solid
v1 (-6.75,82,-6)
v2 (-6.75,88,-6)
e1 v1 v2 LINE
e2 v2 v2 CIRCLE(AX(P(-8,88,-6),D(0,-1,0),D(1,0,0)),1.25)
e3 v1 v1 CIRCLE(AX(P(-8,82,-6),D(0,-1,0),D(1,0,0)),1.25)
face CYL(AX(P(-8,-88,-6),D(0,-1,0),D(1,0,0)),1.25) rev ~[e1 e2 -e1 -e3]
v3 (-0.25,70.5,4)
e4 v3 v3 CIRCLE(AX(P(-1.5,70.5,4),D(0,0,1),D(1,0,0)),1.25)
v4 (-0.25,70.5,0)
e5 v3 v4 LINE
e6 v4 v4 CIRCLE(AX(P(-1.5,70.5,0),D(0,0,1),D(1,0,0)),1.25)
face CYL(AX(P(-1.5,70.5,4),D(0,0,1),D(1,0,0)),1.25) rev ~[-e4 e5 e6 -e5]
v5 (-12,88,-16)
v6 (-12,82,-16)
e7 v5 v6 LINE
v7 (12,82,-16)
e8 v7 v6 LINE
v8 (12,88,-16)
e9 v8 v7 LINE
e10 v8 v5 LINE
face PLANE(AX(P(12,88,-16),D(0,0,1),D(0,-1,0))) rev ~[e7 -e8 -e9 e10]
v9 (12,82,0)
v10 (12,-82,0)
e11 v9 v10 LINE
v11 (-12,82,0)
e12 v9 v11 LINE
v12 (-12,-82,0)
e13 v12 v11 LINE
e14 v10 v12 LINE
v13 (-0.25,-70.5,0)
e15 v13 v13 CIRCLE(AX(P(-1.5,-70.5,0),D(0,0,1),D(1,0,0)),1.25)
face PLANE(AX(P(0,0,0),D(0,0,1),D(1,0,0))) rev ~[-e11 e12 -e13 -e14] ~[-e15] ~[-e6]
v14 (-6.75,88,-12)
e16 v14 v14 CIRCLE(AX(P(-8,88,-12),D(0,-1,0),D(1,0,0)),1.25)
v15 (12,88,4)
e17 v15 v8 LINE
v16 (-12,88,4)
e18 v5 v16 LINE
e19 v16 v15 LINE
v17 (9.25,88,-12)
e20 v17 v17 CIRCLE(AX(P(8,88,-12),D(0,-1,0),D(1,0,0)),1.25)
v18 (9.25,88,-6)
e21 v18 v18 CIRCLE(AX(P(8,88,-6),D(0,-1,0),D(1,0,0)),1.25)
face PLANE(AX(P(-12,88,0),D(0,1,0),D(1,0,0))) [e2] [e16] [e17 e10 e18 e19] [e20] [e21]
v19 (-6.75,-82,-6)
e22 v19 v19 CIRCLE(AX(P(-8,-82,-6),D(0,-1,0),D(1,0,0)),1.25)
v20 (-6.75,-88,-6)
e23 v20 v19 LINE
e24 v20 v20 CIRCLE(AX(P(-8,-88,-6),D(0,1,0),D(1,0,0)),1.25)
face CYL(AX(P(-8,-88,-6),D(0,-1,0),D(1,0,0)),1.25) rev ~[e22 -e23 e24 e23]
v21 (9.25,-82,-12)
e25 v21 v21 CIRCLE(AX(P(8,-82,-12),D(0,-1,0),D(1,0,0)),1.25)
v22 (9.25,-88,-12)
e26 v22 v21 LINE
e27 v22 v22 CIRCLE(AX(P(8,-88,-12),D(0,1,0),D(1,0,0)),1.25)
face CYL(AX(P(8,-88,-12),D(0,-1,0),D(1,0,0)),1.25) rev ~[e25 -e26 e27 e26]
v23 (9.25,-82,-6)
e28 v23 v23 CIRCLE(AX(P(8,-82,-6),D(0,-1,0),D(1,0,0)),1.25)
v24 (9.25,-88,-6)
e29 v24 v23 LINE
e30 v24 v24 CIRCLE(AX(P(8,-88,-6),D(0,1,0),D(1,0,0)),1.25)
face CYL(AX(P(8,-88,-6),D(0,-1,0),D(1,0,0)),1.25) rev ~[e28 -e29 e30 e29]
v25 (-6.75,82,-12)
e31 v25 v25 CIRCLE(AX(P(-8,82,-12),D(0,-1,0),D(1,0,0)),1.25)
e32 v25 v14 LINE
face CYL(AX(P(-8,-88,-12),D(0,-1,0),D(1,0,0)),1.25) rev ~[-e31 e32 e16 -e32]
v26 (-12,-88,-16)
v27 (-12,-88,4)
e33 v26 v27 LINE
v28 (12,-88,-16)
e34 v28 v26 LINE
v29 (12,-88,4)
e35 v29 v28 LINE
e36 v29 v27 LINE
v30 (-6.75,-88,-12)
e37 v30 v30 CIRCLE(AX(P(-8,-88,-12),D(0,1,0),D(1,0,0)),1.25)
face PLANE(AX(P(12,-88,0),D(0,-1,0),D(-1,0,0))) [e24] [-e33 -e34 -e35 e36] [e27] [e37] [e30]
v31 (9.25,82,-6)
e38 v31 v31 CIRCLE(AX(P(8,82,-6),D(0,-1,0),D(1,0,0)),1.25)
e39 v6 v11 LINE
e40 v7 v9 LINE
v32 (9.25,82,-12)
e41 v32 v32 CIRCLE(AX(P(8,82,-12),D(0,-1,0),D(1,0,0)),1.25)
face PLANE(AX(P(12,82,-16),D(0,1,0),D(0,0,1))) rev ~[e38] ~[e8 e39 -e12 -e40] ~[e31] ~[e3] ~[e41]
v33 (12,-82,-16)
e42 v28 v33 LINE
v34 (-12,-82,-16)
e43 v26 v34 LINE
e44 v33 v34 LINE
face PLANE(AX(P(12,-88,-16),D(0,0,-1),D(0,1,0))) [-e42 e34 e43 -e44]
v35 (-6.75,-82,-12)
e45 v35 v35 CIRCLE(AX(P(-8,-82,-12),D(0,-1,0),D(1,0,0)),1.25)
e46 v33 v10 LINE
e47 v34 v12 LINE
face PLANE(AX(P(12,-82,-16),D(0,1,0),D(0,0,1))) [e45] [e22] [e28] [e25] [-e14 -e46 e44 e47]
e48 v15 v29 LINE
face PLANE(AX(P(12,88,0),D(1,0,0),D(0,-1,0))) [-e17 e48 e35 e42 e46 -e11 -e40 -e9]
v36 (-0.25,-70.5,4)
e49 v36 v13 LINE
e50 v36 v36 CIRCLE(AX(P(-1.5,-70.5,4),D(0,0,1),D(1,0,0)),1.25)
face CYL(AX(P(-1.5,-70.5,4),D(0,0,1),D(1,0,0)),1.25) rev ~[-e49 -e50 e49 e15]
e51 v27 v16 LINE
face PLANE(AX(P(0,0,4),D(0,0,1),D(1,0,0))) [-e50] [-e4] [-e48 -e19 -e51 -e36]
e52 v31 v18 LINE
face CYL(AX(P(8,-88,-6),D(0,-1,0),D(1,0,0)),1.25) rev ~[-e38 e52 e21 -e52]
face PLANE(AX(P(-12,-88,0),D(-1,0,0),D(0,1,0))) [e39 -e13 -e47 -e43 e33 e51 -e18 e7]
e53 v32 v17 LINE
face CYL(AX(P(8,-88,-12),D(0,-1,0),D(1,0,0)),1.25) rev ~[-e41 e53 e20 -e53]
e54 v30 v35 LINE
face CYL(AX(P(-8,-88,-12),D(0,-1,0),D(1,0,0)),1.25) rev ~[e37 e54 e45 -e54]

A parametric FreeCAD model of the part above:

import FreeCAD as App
import Part
import Sketcher

doc = App.newDocument("Part")
body = doc.addObject("PartDesign::Body", "Body")

sketch1 = doc.addObject("Sketcher::SketchObject", "Sketch")
body.addObject(sketch1)
sketch1.AttachmentSupport = (doc.XY_Plane, [""])
sketch1.MapMode = "FlatFace"
sketch1.addGeometry([
    Part.LineSegment(App.Vector(12, 88, 0), App.Vector(-12, 88, 0)),
    Part.LineSegment(App.Vector(-12, 88, 0), App.Vector(-12, -88, 0)),
    Part.LineSegment(App.Vector(-12, -88, 0), App.Vector(12, -88, 0)),
    Part.LineSegment(App.Vector(12, -88, 0), App.Vector(12, 88, 0)),
], False)
sketch1.addConstraint([
    Sketcher.Constraint("Coincident", 0, 2, 1, 1),
    Sketcher.Constraint("Coincident", 1, 2, 2, 1),
    Sketcher.Constraint("Coincident", 2, 2, 3, 1),
    Sketcher.Constraint("Coincident", 3, 2, 0, 1),
    Sketcher.Constraint("Horizontal", 0),
    Sketcher.Constraint("Vertical", 1),
    Sketcher.Constraint("Horizontal", 2),
    Sketcher.Constraint("Vertical", 3),
    Sketcher.Constraint("Symmetric", 0, 2, 2, 2, -1, 1),
    Sketcher.Constraint("DistanceX", 0, 2, 0, 1, 24.0),
    Sketcher.Constraint("DistanceY", 1, 2, 1, 1, 176.0),
])
pad1 = doc.addObject("PartDesign::Pad", "Pad")
body.addObject(pad1)
pad1.Profile = sketch1
pad1.Length = 4

sketch2 = doc.addObject("Sketcher::SketchObject", "Sketch001")
body.addObject(sketch2)
sketch2.AttachmentSupport = (doc.YZ_Plane, [""])
sketch2.MapMode = "FlatFace"
sketch2.AttachmentOffset = App.Placement(App.Vector(0, 0, 12), App.Rotation())
sketch2.addGeometry([
    Part.LineSegment(App.Vector(-82, 0, 0), App.Vector(-88, 0, 0)),
    Part.LineSegment(App.Vector(-88, 0, 0), App.Vector(-88, -16, 0)),
    Part.LineSegment(App.Vector(-88, -16, 0), App.Vector(-82, -16, 0)),
    Part.LineSegment(App.Vector(-82, -16, 0), App.Vector(-82, 0, 0)),
    Part.LineSegment(App.Vector(88, 0, 0), App.Vector(82, 0, 0)),
    Part.LineSegment(App.Vector(82, 0, 0), App.Vector(82, -16, 0)),
    Part.LineSegment(App.Vector(82, -16, 0), App.Vector(88, -16, 0)),
    Part.LineSegment(App.Vector(88, -16, 0), App.Vector(88, 0, 0)),
], False)
sketch2.addConstraint([
    Sketcher.Constraint("Coincident", 0, 2, 1, 1),
    Sketcher.Constraint("Coincident", 1, 2, 2, 1),
    Sketcher.Constraint("Coincident", 2, 2, 3, 1),
    Sketcher.Constraint("Coincident", 3, 2, 0, 1),
    Sketcher.Constraint("Coincident", 4, 2, 5, 1),
    Sketcher.Constraint("Coincident", 5, 2, 6, 1),
    Sketcher.Constraint("Coincident", 6, 2, 7, 1),
    Sketcher.Constraint("Coincident", 7, 2, 4, 1),
    Sketcher.Constraint("Horizontal", 0),
    Sketcher.Constraint("Vertical", 1),
    Sketcher.Constraint("Horizontal", 2),
    Sketcher.Constraint("Vertical", 3),
    Sketcher.Constraint("Horizontal", 4),
    Sketcher.Constraint("Vertical", 5),
    Sketcher.Constraint("Horizontal", 6),
    Sketcher.Constraint("Vertical", 7),
    Sketcher.Constraint("Symmetric", 3, 2, 4, 2, -1, 1),
    Sketcher.Constraint("Symmetric", 1, 2, 6, 2, -2),
    Sketcher.Constraint("PointOnObject", 0, 2, -1),
    Sketcher.Constraint("DistanceX", 0, 2, 0, 1, 6.0),
    Sketcher.Constraint("DistanceY", 1, 2, 1, 1, 16.0),
    Sketcher.Constraint("DistanceX", 0, 2, -1, 1, 88.0),
])
pad2 = doc.addObject("PartDesign::Pad", "Pad001")
body.addObject(pad2)
pad2.Profile = sketch2
pad2.Length = 24
pad2.Reversed = True

sketch3 = doc.addObject("Sketcher::SketchObject", "Sketch002")
body.addObject(sketch3)
sketch3.AttachmentSupport = (doc.XZ_Plane, [""])
sketch3.MapMode = "FlatFace"
sketch3.AttachmentOffset = App.Placement(App.Vector(0, 0, 88), App.Rotation())
sketch3.addGeometry([
    Part.Circle(App.Vector(-8, -12, 0), App.Vector(0, 0, 1), 1.25),
    Part.Circle(App.Vector(-8, -6, 0), App.Vector(0, 0, 1), 1.25),
    Part.Circle(App.Vector(8, -12, 0), App.Vector(0, 0, 1), 1.25),
    Part.Circle(App.Vector(8, -6, 0), App.Vector(0, 0, 1), 1.25),
], False)
sketch3.addConstraint([
    Sketcher.Constraint("Equal", 0, 1),
    Sketcher.Constraint("Equal", 1, 2),
    Sketcher.Constraint("Equal", 2, 3),
    Sketcher.Constraint("Symmetric", 0, 3, 2, 3, -2),
    Sketcher.Constraint("Symmetric", 1, 3, 3, 3, -2),
    Sketcher.Constraint("Vertical", 0, 3, 1, 3),
    Sketcher.Constraint("Diameter", 0, 2.5),
    Sketcher.Constraint("DistanceX", 0, 3, -1, 1, 8.0),
    Sketcher.Constraint("DistanceY", 0, 3, -1, 1, 12.0),
    Sketcher.Constraint("DistanceY", 1, 3, -1, 1, 6.0),
])
pocket1 = doc.addObject("PartDesign::Pocket", "Pocket")
body.addObject(pocket1)
pocket1.Profile = sketch3
pocket1.Type = "ThroughAll"

sketch4 = doc.addObject("Sketcher::SketchObject", "Sketch003")
body.addObject(sketch4)
sketch4.AttachmentSupport = (doc.XY_Plane, [""])
sketch4.MapMode = "FlatFace"
sketch4.AttachmentOffset = App.Placement(App.Vector(0, 0, 4), App.Rotation())
sketch4.addGeometry([
    Part.Circle(App.Vector(-1.5, -70.5, 0), App.Vector(0, 0, 1), 1.25),
    Part.Circle(App.Vector(-1.5, 70.5, 0), App.Vector(0, 0, 1), 1.25),
], False)
sketch4.addConstraint([
    Sketcher.Constraint("Equal", 0, 1),
    Sketcher.Constraint("Symmetric", 0, 3, 1, 3, -1),
    Sketcher.Constraint("Diameter", 0, 2.5),
    Sketcher.Constraint("DistanceY", 0, 3, 1, 3, 141.0),
    Sketcher.Constraint("DistanceX", 0, 3, -1, 1, 1.5),
])
pocket2 = doc.addObject("PartDesign::Pocket", "Pocket001")
body.addObject(pocket2)
pocket2.Profile = sketch4
pocket2.Length = 10

doc.recompute()
